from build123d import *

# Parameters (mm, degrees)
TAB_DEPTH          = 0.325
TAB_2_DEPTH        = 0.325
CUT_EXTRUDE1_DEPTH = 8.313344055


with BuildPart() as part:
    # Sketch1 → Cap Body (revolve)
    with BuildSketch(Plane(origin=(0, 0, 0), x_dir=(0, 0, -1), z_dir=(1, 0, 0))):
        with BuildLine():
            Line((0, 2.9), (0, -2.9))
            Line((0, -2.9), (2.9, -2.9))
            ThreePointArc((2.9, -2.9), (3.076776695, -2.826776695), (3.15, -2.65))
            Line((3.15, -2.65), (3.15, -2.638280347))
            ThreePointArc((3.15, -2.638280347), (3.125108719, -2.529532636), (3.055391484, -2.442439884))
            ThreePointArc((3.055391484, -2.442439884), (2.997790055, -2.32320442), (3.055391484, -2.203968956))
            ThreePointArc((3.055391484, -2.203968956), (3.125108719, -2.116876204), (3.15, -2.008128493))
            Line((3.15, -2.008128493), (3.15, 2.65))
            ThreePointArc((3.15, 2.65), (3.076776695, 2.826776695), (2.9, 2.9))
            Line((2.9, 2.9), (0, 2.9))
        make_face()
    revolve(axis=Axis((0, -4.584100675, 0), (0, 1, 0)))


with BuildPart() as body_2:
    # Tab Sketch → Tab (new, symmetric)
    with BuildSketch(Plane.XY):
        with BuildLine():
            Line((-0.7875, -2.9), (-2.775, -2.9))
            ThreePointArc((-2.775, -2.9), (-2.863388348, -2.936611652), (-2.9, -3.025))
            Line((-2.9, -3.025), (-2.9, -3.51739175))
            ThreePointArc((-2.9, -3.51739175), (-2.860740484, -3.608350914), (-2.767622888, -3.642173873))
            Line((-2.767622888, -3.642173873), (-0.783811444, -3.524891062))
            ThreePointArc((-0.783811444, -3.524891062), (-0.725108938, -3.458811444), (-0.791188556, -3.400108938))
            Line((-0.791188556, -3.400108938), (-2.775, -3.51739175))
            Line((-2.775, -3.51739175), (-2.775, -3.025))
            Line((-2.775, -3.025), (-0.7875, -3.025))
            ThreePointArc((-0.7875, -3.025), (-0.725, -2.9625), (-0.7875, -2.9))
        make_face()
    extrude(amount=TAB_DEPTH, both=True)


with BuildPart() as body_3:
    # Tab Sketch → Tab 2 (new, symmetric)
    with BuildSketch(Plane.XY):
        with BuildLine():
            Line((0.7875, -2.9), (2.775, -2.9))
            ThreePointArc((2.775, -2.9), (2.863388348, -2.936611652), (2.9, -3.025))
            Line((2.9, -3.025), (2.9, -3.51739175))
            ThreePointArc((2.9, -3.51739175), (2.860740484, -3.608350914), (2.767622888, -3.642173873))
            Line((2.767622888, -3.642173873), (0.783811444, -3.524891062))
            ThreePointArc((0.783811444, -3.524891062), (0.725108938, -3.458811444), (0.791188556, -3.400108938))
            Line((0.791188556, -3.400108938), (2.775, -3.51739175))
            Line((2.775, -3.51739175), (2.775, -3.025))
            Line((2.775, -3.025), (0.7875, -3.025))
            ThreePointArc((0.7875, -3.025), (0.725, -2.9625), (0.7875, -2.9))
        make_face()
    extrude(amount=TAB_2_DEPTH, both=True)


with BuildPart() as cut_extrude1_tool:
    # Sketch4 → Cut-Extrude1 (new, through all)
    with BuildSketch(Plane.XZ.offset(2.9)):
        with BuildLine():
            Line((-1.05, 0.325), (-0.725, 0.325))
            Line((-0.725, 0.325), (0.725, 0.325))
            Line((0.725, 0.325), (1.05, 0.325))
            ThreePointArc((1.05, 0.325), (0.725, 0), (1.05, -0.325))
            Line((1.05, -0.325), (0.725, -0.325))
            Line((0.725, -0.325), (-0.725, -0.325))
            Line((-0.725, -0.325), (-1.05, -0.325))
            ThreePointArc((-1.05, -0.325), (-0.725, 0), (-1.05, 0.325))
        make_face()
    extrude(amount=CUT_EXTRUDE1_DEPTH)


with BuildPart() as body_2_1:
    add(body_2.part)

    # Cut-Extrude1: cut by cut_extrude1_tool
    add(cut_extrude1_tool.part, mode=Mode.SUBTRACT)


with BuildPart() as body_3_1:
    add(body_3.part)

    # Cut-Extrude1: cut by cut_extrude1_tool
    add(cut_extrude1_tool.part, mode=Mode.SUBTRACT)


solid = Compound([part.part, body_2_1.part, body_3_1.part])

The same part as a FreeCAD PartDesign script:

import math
import FreeCAD as App
import Part
import Sketcher

V = App.Vector
Q = App.Units.Quantity

doc = App.newDocument("Part")
body = doc.addObject("PartDesign::Body", "Body")

sketch1 = body.newObject("Sketcher::SketchObject", "Sketch")
sketch1.AttachmentSupport = (doc.getObject("YZ_Plane"), [""])
sketch1.MapMode = "FlatFace"
sketch1.addGeometry([
    Part.LineSegment(V(2.9, 0, 0), V(-2.9, 0, 0)),
    Part.LineSegment(V(-2.9, 0, 0), V(-2.9, -2.9, 0)),
    Part.ArcOfCircle(Part.Circle(V(-2.65, -2.9, 0), V(0, 0, 1), 0.25), math.radians(-180), math.radians(-90)),
    Part.LineSegment(V(-2.65, -3.15, 0), V(-2.638, -3.15, 0)),
    Part.ArcOfCircle(Part.Circle(V(-2.638, -2.9, 0), V(0, 0, 1), 0.25), math.radians(-90), math.radians(-38)),
    Part.ArcOfCircle(Part.Circle(V(-2.323, -3.15, 0), V(0, 0, 1), 0.152), math.radians(38), math.radians(142)),
    Part.ArcOfCircle(Part.Circle(V(-2.008, -2.9, 0), V(0, 0, 1), 0.25), math.radians(-142), math.radians(-90)),
    Part.LineSegment(V(-2.008, -3.15, 0), V(2.65, -3.15, 0)),
    Part.ArcOfCircle(Part.Circle(V(2.65, -2.9, 0), V(0, 0, 1), 0.25), math.radians(-90), math.radians(0)),
    Part.LineSegment(V(2.9, -2.9, 0), V(2.9, 0, 0)),
], False)
sketch1.addConstraint([
    Sketcher.Constraint("Coincident", 0, 2, 1, 1),
    Sketcher.Constraint("Tangent", 1, 2, 2, 1),
    Sketcher.Constraint("Tangent", 2, 2, 3, 1),
    Sketcher.Constraint("Tangent", 3, 2, 4, 1),
    Sketcher.Constraint("Tangent", 4, 2, 5, 2),
    Sketcher.Constraint("Tangent", 5, 1, 6, 1),
    Sketcher.Constraint("Tangent", 6, 2, 7, 1),
    Sketcher.Constraint("Tangent", 7, 2, 8, 1),
    Sketcher.Constraint("Tangent", 8, 2, 9, 1),
    Sketcher.Constraint("Coincident", 9, 2, 0, 1),
    Sketcher.Constraint("Horizontal", 0),
    Sketcher.Constraint("Vertical", 1),
    Sketcher.Constraint("Horizontal", 3),
    Sketcher.Constraint("Horizontal", 7),
    Sketcher.Constraint("Vertical", 9),
    Sketcher.Constraint("Equal", 2, 4),
    Sketcher.Constraint("Equal", 4, 6),
    Sketcher.Constraint("Equal", 6, 8),
    Sketcher.Constraint("Symmetric", 0, 2, 9, 2, -1, 1),
    Sketcher.Constraint("Horizontal", 4, 3, 6, 3),
    Sketcher.Constraint("Horizontal", 5, 3, 2, 2),
    Sketcher.Constraint("Radius", 2, Q("0.25 mm")),
    Sketcher.Constraint("DistanceX", 0, 2, 0, 1, Q("5.8 mm")),
    Sketcher.Constraint("DistanceY", 1, 2, 1, 1, Q("2.9 mm")),
    Sketcher.Constraint("Radius", 5, Q("0.15221 mm")),
    Sketcher.Constraint("DistanceX", 3, 1, 3, 2, Q("0.01172 mm")),
])
revolution = body.newObject("PartDesign::Revolution", "Revolution")
revolution.Profile = sketch1
revolution.ReferenceAxis = (sketch1, ["H_Axis"])
revolution.Angle = 360
body2 = doc.addObject("PartDesign::Body", "Body001")

sketch2 = body2.newObject("Sketcher::SketchObject", "Sketch001")
sketch2.AttachmentSupport = (doc.getObject("XY_Plane001"), [""])
sketch2.MapMode = "FlatFace"
sketch2.addGeometry([
    Part.LineSegment(V(-0.79, -2.9, 0), V(-2.77, -2.9, 0)),
    Part.ArcOfCircle(Part.Circle(V(-2.78, -3.02, 0), V(0, 0, 1), 0.12), math.radians(90), math.radians(180)),
    Part.LineSegment(V(-2.9, -3.02, 0), V(-2.9, -3.52, 0)),
    Part.ArcOfCircle(Part.Circle(V(-2.78, -3.52, 0), V(0, 0, 1), 0.12), math.radians(180), math.radians(273)),
    Part.LineSegment(V(-2.77, -3.64, 0), V(-0.78, -3.52, 0)),
    Part.ArcOfCircle(Part.Circle(V(-0.79, -3.46, 0), V(0, 0, 1), 0.06), math.radians(-87), math.radians(93)),
    Part.LineSegment(V(-0.79, -3.4, 0), V(-2.77, -3.52, 0)),
    Part.LineSegment(V(-2.77, -3.52, 0), V(-2.77, -3.02, 0)),
    Part.LineSegment(V(-2.77, -3.02, 0), V(-0.79, -3.02, 0)),
    Part.ArcOfCircle(Part.Circle(V(-0.79, -2.96, 0), V(0, 0, 1), 0.06), math.radians(-90), math.radians(90)),
], False)
sketch2.addConstraint([
    Sketcher.Constraint("Tangent", 0, 2, 1, 1),
    Sketcher.Constraint("Tangent", 1, 2, 2, 1),
    Sketcher.Constraint("Tangent", 2, 2, 3, 1),
    Sketcher.Constraint("Tangent", 3, 2, 4, 1),
    Sketcher.Constraint("Tangent", 4, 2, 5, 1),
    Sketcher.Constraint("Tangent", 5, 2, 6, 1),
    Sketcher.Constraint("Coincident", 6, 2, 7, 1),
    Sketcher.Constraint("Coincident", 7, 2, 8, 1),
    Sketcher.Constraint("Tangent", 8, 2, 9, 1),
    Sketcher.Constraint("Tangent", 9, 2, 0, 1),
    Sketcher.Constraint("Horizontal", 0),
    Sketcher.Constraint("Vertical", 2),
    Sketcher.Constraint("Vertical", 7),
    Sketcher.Constraint("Horizontal", 8),
    Sketcher.Constraint("Coincident", 6, 2, 3, 3),
    Sketcher.Constraint("Coincident", 7, 2, 1, 3),
    Sketcher.Constraint("Equal", 5, 9),
    Sketcher.Constraint("Vertical", 5, 3, 9, 3),
    Sketcher.Constraint("Radius", 1, Q("0.125 mm")),
    Sketcher.Constraint("DistanceY", 0, 2, -1, 1, Q("2.9 mm")),
    Sketcher.Constraint("DistanceX", 1, 2, -1, 1, Q("2.9 mm")),
    Sketcher.Constraint("DistanceY", 5, 3, 9, 3, Q("0.5 mm")),
    Sketcher.Constraint("DistanceX", 0, 2, 0, 1, Q("1.9875 mm")),
    Sketcher.Constraint("DistanceY", 2, 2, 2, 1, Q("0.492392 mm")),
])
pad1 = body2.newObject("PartDesign::Pad", "Pad")
pad1.Profile = sketch2
pad1.Length = 0.65
pad1.Midplane = True
body3 = doc.addObject("PartDesign::Body", "Body002")

sketch3 = body3.newObject("Sketcher::SketchObject", "Sketch002")
sketch3.AttachmentSupport = (doc.getObject("XY_Plane002"), [""])
sketch3.MapMode = "FlatFace"
sketch3.addGeometry([
    Part.LineSegment(V(2.77, -2.9, 0), V(0.79, -2.9, 0)),
    Part.ArcOfCircle(Part.Circle(V(0.79, -2.96, 0), V(0, 0, 1), 0.06), math.radians(90), math.radians(270)),
    Part.LineSegment(V(0.79, -3.02, 0), V(2.77, -3.02, 0)),
    Part.LineSegment(V(2.77, -3.02, 0), V(2.77, -3.52, 0)),
    Part.LineSegment(V(2.77, -3.52, 0), V(0.79, -3.4, 0)),
    Part.ArcOfCircle(Part.Circle(V(0.79, -3.46, 0), V(0, 0, 1), 0.06), math.radians(87), math.radians(267)),
    Part.LineSegment(V(0.78, -3.52, 0), V(2.77, -3.64, 0)),
    Part.ArcOfCircle(Part.Circle(V(2.78, -3.52, 0), V(0, 0, 1), 0.12), math.radians(-93), math.radians(0)),
    Part.LineSegment(V(2.9, -3.52, 0), V(2.9, -3.02, 0)),
    Part.ArcOfCircle(Part.Circle(V(2.78, -3.02, 0), V(0, 0, 1), 0.12), math.radians(0), math.radians(90)),
], False)
sketch3.addConstraint([
    Sketcher.Constraint("Tangent", 0, 2, 1, 1),
    Sketcher.Constraint("Tangent", 1, 2, 2, 1),
    Sketcher.Constraint("Coincident", 2, 2, 3, 1),
    Sketcher.Constraint("Coincident", 3, 2, 4, 1),
    Sketcher.Constraint("Tangent", 4, 2, 5, 1),
    Sketcher.Constraint("Tangent", 5, 2, 6, 1),
    Sketcher.Constraint("Tangent", 6, 2, 7, 1),
    Sketcher.Constraint("Tangent", 7, 2, 8, 1),
    Sketcher.Constraint("Tangent", 8, 2, 9, 1),
    Sketcher.Constraint("Tangent", 9, 2, 0, 1),
    Sketcher.Constraint("Horizontal", 0),
    Sketcher.Constraint("Horizontal", 2),
    Sketcher.Constraint("Vertical", 3),
    Sketcher.Constraint("Vertical", 8),
    Sketcher.Constraint("Coincident", 2, 2, 9, 3),
    Sketcher.Constraint("Coincident", 3, 2, 7, 3),
    Sketcher.Constraint("Equal", 1, 5),
    Sketcher.Constraint("Vertical", 1, 3, 5, 3),
    Sketcher.Constraint("Radius", 7, Q("0.125 mm")),
    Sketcher.Constraint("DistanceY", 0, 2, -1, 1, Q("2.9 mm")),
    Sketcher.Constraint("DistanceX", -1, 1, 7, 2, Q("2.9 mm")),
    Sketcher.Constraint("DistanceY", 5, 3, 1, 3, Q("0.5 mm")),
    Sketcher.Constraint("DistanceX", 0, 2, 0, 1, Q("1.9875 mm")),
    Sketcher.Constraint("DistanceY", 3, 2, 3, 1, Q("0.492392 mm")),
])
pad2 = body3.newObject("PartDesign::Pad", "Pad001")
pad2.Profile = sketch3
pad2.Length = 0.65
pad2.Midplane = True
body4 = doc.addObject("PartDesign::Body", "Body003")

sketch4 = body4.newObject("Sketcher::SketchObject", "Sketch003")
sketch4.AttachmentSupport = (doc.getObject("XZ_Plane003"), [""])
sketch4.MapMode = "FlatFace"
sketch4.AttachmentOffset = App.Placement(V(0, 0, 2.9), App.Rotation())
sketch4.addGeometry([
    Part.LineSegment(V(1.05, 0.33, 0), V(-1.05, 0.33, 0)),
    Part.ArcOfCircle(Part.Circle(V(-1.05, 0, 0), V(0, 0, 1), 0.33), math.radians(-90), math.radians(90)),
    Part.LineSegment(V(-1.05, -0.33, 0), V(1.05, -0.33, 0)),
    Part.ArcOfCircle(Part.Circle(V(1.05, 0, 0), V(0, 0, 1), 0.33), math.radians(90), math.radians(270)),
], False)
sketch4.addConstraint([
    Sketcher.Constraint("Tangent", 0, 2, 1, 2),
    Sketcher.Constraint("Tangent", 1, 1, 2, 1),
    Sketcher.Constraint("Tangent", 2, 2, 3, 2),
    Sketcher.Constraint("Tangent", 3, 1, 0, 1),
    Sketcher.Constraint("Horizontal", 0),
    Sketcher.Constraint("Horizontal", 2),
    Sketcher.Constraint("Symmetric", 1, 3, 3, 3, -1, 1),
    Sketcher.Constraint("DistanceX", 0, 2, 0, 1, Q("2.1 mm")),
    Sketcher.Constraint("Radius", 1, Q("0.325 mm")),
])
pad3 = body4.newObject("PartDesign::Pad", "Pad002")
pad3.Profile = sketch4
pad3.Length = 8.313344
doc.recompute()

body5 = doc.addObject("PartDesign::Body", "Body004")
body5.BaseFeature = body4
boolean = body2.newObject("PartDesign::Boolean", "Boolean")
boolean.Type = "Cut"
boolean.addObjects([body5])
doc.recompute()

boolean2 = body3.newObject("PartDesign::Boolean", "Boolean001")
boolean2.Type = "Cut"
boolean2.addObjects([body4])

doc.recompute()
